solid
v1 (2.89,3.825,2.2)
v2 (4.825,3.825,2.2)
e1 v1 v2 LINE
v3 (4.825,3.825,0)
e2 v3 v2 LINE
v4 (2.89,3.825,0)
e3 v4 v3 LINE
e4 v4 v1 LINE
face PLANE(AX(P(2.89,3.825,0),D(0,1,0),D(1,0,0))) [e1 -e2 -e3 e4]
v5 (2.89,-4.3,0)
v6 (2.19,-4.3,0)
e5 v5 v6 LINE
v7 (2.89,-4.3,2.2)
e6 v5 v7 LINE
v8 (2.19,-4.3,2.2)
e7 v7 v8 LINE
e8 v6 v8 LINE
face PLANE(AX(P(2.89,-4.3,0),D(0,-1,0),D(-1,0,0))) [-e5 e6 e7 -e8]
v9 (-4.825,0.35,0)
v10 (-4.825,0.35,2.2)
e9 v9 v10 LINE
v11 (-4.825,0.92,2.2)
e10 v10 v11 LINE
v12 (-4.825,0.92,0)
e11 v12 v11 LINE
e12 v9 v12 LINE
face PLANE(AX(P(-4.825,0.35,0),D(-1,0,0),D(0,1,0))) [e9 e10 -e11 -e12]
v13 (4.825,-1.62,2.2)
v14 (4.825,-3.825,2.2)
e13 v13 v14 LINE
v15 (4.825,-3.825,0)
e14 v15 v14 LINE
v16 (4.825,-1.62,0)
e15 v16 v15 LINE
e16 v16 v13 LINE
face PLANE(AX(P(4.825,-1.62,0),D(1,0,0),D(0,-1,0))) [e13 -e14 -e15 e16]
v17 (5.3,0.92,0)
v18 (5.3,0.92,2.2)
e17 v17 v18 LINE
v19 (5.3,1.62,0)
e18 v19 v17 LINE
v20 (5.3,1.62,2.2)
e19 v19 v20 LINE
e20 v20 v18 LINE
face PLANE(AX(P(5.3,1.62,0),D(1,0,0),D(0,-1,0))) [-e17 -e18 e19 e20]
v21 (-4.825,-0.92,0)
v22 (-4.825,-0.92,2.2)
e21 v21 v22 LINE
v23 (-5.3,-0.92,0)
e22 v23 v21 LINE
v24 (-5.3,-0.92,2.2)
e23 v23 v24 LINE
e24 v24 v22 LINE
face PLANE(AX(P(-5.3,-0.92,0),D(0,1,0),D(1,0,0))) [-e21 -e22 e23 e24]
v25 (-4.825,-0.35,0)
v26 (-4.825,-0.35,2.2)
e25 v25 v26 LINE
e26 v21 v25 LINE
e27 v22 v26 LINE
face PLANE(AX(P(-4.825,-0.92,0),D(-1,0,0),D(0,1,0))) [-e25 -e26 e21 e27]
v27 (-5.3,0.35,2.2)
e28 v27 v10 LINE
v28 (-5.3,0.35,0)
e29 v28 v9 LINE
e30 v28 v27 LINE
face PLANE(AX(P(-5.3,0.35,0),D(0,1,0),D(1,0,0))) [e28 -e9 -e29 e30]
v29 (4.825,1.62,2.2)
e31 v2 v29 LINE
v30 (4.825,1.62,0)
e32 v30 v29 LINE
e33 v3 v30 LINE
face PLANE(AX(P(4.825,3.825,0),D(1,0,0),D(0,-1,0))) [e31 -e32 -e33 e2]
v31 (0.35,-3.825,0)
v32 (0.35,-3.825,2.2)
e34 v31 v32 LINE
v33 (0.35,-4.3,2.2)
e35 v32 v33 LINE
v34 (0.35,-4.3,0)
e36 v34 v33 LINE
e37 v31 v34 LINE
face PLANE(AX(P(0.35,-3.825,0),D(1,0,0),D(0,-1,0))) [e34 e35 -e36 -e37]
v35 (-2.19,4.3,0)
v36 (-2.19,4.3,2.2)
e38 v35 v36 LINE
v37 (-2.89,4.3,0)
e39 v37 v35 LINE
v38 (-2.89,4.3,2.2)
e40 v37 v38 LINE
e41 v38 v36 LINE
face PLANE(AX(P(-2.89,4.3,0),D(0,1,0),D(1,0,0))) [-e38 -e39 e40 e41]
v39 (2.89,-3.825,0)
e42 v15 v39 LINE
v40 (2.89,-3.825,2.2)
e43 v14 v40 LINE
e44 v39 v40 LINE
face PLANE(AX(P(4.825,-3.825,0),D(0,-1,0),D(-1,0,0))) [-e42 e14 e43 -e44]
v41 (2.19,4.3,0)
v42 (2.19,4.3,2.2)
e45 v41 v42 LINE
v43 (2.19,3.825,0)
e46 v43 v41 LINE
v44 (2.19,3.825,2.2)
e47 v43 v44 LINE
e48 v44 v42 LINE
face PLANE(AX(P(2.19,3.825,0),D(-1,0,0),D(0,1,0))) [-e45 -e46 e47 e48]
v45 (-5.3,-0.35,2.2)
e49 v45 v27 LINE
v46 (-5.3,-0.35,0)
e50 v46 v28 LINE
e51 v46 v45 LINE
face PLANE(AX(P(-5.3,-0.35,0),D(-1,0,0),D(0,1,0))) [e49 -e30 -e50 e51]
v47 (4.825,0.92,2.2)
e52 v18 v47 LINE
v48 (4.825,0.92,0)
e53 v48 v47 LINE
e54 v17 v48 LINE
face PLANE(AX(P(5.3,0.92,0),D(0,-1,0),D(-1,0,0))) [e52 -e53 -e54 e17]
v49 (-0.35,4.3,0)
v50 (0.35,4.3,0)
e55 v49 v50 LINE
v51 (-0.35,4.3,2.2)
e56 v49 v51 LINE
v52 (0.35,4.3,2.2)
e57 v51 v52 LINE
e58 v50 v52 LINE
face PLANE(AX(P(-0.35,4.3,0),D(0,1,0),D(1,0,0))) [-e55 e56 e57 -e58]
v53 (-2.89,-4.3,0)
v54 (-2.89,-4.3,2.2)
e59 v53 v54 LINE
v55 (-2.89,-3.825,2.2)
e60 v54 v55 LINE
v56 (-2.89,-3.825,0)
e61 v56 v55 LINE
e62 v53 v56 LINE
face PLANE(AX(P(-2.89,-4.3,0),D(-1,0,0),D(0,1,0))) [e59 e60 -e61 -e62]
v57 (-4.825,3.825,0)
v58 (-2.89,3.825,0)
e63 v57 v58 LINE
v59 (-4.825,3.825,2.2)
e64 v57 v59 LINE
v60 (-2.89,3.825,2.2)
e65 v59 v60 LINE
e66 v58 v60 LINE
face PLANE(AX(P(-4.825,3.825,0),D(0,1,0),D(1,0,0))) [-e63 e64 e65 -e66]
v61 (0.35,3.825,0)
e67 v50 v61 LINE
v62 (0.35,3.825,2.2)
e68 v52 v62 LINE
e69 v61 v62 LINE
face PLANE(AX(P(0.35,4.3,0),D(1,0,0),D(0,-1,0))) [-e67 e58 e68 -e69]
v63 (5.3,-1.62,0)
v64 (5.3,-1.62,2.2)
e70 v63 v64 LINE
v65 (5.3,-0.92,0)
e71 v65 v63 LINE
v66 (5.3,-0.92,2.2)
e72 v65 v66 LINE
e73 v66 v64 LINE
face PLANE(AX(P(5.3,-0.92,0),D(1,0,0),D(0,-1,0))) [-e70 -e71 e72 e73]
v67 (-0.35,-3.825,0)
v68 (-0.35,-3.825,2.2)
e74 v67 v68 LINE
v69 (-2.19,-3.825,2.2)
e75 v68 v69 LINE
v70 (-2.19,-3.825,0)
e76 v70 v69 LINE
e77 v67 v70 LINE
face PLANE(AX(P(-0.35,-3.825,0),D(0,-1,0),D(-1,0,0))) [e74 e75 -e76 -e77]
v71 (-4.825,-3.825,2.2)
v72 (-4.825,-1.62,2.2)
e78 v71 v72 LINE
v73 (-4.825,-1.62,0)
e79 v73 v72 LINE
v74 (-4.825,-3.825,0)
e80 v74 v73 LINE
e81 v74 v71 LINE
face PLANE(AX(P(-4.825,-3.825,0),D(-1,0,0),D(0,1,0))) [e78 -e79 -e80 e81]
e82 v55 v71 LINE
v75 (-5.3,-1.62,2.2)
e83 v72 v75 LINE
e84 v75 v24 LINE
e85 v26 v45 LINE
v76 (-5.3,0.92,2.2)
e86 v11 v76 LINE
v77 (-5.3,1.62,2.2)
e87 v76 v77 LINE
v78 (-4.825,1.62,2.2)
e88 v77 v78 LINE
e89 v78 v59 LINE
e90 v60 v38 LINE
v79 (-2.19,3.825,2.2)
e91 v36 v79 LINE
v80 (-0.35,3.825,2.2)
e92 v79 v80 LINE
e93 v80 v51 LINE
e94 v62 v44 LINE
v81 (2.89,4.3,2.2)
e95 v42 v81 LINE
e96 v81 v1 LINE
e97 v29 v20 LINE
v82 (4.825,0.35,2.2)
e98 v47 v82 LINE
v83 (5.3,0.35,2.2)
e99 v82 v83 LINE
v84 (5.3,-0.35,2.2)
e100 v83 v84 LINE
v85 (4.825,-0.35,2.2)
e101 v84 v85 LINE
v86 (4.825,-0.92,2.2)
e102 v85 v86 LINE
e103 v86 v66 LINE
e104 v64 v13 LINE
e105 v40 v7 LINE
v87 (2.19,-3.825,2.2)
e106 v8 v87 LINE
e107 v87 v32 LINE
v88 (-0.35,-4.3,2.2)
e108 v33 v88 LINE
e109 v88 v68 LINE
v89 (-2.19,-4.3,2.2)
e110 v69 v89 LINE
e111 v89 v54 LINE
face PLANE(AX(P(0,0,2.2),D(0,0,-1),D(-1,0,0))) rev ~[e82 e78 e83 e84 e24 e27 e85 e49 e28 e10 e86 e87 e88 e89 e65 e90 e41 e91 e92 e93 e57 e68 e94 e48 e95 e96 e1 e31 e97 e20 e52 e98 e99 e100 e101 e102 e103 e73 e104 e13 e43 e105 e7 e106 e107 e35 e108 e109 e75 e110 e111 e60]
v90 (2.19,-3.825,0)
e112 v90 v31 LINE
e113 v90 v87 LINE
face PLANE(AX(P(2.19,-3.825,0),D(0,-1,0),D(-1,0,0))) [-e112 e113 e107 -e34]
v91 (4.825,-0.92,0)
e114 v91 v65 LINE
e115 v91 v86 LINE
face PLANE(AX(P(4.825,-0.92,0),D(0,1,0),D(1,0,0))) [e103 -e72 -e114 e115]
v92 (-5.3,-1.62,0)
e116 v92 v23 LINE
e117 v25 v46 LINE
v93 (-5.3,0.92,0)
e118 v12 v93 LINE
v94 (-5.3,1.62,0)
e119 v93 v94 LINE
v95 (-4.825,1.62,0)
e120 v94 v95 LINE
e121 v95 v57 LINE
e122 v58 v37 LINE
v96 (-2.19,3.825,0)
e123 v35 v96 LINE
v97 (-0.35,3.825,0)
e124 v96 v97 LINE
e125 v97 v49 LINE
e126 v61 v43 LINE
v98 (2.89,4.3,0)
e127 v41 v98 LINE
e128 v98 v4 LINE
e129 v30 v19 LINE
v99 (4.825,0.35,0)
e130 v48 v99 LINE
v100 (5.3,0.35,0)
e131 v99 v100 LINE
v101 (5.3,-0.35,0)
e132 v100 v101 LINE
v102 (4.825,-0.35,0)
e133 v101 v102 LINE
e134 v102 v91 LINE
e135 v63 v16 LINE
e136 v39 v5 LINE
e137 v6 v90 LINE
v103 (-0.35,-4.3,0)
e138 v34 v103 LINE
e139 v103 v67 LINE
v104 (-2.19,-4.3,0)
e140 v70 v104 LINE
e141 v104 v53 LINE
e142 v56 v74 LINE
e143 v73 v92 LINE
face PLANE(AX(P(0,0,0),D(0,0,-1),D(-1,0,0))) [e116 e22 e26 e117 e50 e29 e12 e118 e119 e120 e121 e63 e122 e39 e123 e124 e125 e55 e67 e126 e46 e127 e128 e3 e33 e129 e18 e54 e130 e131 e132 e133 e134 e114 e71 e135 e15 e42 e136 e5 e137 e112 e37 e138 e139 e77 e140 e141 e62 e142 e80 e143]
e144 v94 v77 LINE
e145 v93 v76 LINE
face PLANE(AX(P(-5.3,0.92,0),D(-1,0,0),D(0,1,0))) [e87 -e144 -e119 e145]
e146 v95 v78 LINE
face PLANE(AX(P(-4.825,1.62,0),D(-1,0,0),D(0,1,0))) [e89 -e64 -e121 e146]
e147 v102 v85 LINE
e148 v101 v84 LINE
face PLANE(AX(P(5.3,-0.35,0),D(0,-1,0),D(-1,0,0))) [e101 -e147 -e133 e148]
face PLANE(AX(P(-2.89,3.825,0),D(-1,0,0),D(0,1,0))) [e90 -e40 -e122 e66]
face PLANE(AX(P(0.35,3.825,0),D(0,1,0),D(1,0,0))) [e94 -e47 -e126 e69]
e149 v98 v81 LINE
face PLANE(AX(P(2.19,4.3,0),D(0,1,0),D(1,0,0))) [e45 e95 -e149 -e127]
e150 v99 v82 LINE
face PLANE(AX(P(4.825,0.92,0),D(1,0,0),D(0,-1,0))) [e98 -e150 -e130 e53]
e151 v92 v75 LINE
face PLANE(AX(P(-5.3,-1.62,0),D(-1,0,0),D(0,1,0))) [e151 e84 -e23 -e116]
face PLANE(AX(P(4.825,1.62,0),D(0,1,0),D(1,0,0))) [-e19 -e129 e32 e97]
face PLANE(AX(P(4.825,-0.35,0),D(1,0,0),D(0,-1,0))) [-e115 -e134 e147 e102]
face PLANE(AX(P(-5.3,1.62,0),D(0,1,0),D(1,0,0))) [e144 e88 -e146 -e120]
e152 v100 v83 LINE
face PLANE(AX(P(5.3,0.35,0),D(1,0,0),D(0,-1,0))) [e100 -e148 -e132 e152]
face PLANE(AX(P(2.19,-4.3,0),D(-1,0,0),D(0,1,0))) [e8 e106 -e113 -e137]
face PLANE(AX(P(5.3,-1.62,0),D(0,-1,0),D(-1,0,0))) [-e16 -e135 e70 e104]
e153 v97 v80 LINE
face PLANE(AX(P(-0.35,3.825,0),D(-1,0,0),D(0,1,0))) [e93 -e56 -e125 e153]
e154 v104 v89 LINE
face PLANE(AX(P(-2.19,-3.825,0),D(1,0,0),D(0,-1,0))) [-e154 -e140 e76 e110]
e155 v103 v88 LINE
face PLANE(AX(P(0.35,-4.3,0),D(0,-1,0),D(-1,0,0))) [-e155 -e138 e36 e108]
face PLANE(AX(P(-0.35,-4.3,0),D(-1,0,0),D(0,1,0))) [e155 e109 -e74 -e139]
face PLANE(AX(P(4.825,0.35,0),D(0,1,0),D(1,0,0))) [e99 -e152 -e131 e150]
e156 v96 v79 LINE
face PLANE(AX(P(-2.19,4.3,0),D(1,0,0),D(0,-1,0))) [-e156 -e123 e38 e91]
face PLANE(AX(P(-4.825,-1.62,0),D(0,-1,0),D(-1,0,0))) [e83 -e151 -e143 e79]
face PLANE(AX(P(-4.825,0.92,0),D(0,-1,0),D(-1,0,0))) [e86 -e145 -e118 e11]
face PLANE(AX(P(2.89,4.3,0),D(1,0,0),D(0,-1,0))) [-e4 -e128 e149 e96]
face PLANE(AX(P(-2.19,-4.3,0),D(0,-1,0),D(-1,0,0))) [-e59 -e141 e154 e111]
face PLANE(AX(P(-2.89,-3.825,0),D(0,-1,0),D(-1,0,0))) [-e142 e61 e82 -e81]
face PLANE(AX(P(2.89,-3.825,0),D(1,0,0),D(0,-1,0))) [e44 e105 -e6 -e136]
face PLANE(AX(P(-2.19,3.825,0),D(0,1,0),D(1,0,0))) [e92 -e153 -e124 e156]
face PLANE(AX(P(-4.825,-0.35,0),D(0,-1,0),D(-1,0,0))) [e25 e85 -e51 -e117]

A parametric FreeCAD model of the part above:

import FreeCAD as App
import Part
import Sketcher

V = App.Vector


def add_polygon(sketch, points):
    """Adds a closed chain of lines whose ends are joined by coincident constraints."""
    first, n = sketch.GeometryCount, len(points)
    for a, b in zip(points, points[1:] + points[:1]):
        sketch.addGeometry(Part.LineSegment(App.Vector(*a, 0), App.Vector(*b, 0)), False)
    for i in range(n):
        sketch.addConstraint(Sketcher.Constraint("Coincident", first + i, 2, first + (i + 1) % n, 1))

doc = App.newDocument("Part")
body = doc.addObject("PartDesign::Body", "Body")

sketch1 = doc.addObject("Sketcher::SketchObject", "Sketch")
body.addObject(sketch1)
sketch1.AttachmentSupport = (doc.XY_Plane, [""])
sketch1.MapMode = "FlatFace"
add_polygon(sketch1, [(-2.89, -3.83), (-2.89, -4.3), (-2.19, -4.3), (-2.19, -3.83), (-0.35, -3.83), (-0.35, -4.3), (0.35, -4.3), (0.35, -3.83), (2.19, -3.83), (2.19, -4.3), (2.89, -4.3), (2.89, -3.83), (4.83, -3.83), (4.83, -1.62), (5.3, -1.62), (5.3, -0.92), (4.83, -0.92), (4.83, -0.35), (5.3, -0.35), (5.3, 0.35), (4.83, 0.35), (4.83, 0.92), (5.3, 0.92), (5.3, 1.62), (4.83, 1.62), (4.83, 3.83), (2.89, 3.83), (2.89, 4.3), (2.19, 4.3), (2.19, 3.83), (0.35, 3.83), (0.35, 4.3), (-0.35, 4.3), (-0.35, 3.83), (-2.19, 3.83), (-2.19, 4.3), (-2.89, 4.3), (-2.89, 3.83), (-4.83, 3.83), (-4.83, 1.62), (-5.3, 1.62), (-5.3, 0.92), (-4.83, 0.92), (-4.83, 0.35), (-5.3, 0.35), (-5.3, -0.35), (-4.83, -0.35), (-4.83, -0.92), (-5.3, -0.92), (-5.3, -1.62), (-4.83, -1.62), (-4.83, -3.83)])
sketch1.addConstraint([
    Sketcher.Constraint("Vertical", 0),
    Sketcher.Constraint("Horizontal", 1),
    Sketcher.Constraint("Vertical", 2),
    Sketcher.Constraint("Horizontal", 3),
    Sketcher.Constraint("Vertical", 4),
    Sketcher.Constraint("Horizontal", 5),
    Sketcher.Constraint("Vertical", 6),
    Sketcher.Constraint("Horizontal", 7),
    Sketcher.Constraint("Vertical", 8),
    Sketcher.Constraint("Horizontal", 9),
    Sketcher.Constraint("Vertical", 10),
    Sketcher.Constraint("Horizontal", 11),
    Sketcher.Constraint("Vertical", 12),
    Sketcher.Constraint("Horizontal", 13),
    Sketcher.Constraint("Vertical", 14),
    Sketcher.Constraint("Horizontal", 15),
    Sketcher.Constraint("Vertical", 16),
    Sketcher.Constraint("Horizontal", 17),
    Sketcher.Constraint("Vertical", 18),
    Sketcher.Constraint("Horizontal", 19),
    Sketcher.Constraint("Vertical", 20),
    Sketcher.Constraint("Horizontal", 21),
    Sketcher.Constraint("Vertical", 22),
    Sketcher.Constraint("Horizontal", 23),
    Sketcher.Constraint("Vertical", 24),
    Sketcher.Constraint("Horizontal", 25),
    Sketcher.Constraint("Vertical", 26),
    Sketcher.Constraint("Horizontal", 27),
    Sketcher.Constraint("Vertical", 28),
    Sketcher.Constraint("Horizontal", 29),
    Sketcher.Constraint("Vertical", 30),
    Sketcher.Constraint("Horizontal", 31),
    Sketcher.Constraint("Vertical", 32),
    Sketcher.Constraint("Horizontal", 33),
    Sketcher.Constraint("Vertical", 34),
    Sketcher.Constraint("Horizontal", 35),
    Sketcher.Constraint("Vertical", 36),
    Sketcher.Constraint("Horizontal", 37),
    Sketcher.Constraint("Vertical", 38),
    Sketcher.Constraint("Horizontal", 39),
    Sketcher.Constraint("Vertical", 40),
    Sketcher.Constraint("Horizontal", 41),
    Sketcher.Constraint("Vertical", 42),
    Sketcher.Constraint("Horizontal", 43),
    Sketcher.Constraint("Vertical", 44),
    Sketcher.Constraint("Horizontal", 45),
    Sketcher.Constraint("Vertical", 46),
    Sketcher.Constraint("Horizontal", 47),
    Sketcher.Constraint("Vertical", 48),
    Sketcher.Constraint("Horizontal", 49),
    Sketcher.Constraint("Vertical", 50),
    Sketcher.Constraint("Horizontal", 51),
    Sketcher.Constraint("Symmetric", 0, 2, 26, 2, -1, 1),
    Sketcher.Constraint("Symmetric", 2, 2, 28, 2, -1, 1),
    Sketcher.Constraint("Symmetric", 4, 2, 30, 2, -1, 1),
    Sketcher.Constraint("Symmetric", 6, 2, 32, 2, -1, 1),
    Sketcher.Constraint("Symmetric", 8, 2, 34, 2, -1, 1),
    Sketcher.Constraint("Symmetric", 10, 2, 36, 2, -1, 1),
    Sketcher.Constraint("Symmetric", 12, 2, 38, 2, -1, 1),
    Sketcher.Constraint("Symmetric", 14, 2, 40, 2, -1, 1),
    Sketcher.Constraint("Symmetric", 16, 2, 42, 2, -1, 1),
    Sketcher.Constraint("Symmetric", 18, 2, 44, 2, -1, 1),
    Sketcher.Constraint("Symmetric", 20, 2, 46, 2, -1, 1),
    Sketcher.Constraint("Symmetric", 22, 2, 48, 2, -1, 1),
    Sketcher.Constraint("Symmetric", 24, 2, 50, 2, -1, 1),
    Sketcher.Constraint("Symmetric", 3, 2, 6, 2, -2),
    Sketcher.Constraint("Symmetric", 1, 2, 8, 2, -2),
    Sketcher.Constraint("Symmetric", 25, 2, 36, 2, -2),
    Sketcher.Constraint("Symmetric", 23, 2, 38, 2, -2),
    Sketcher.Constraint("Symmetric", 21, 2, 40, 2, -2),
    Sketcher.Constraint("Symmetric", 19, 2, 42, 2, -2),
    Sketcher.Constraint("Horizontal", 1, 2, 4, 2),
    Sketcher.Constraint("Horizontal", 7, 2, 10, 2),
    Sketcher.Constraint("Vertical", 12, 2, 15, 2),
    Sketcher.Constraint("Vertical", 14, 2, 17, 2),
    Sketcher.Constraint("Equal", 1, 5),
    Sketcher.Constraint("Equal", 49, 0),
    Sketcher.Constraint("Equal", 35, 14),
    Sketcher.Constraint("Equal", 14, 18),
    Sketcher.Constraint("DistanceX", 1, 1, 1, 2, 0.7),
    Sketcher.Constraint("DistanceX", 3, 1, 3, 2, 1.84),
    Sketcher.Constraint("DistanceY", 16, 1, 16, 2, 0.57),
    Sketcher.Constraint("DistanceY", 0, 2, -1, 1, 4.3),
    Sketcher.Constraint("DistanceX", -1, 1, 13, 2, 5.3),
    Sketcher.Constraint("DistanceX", 11, 1, 11, 2, 1.935),
])
pad1 = doc.addObject("PartDesign::Pad", "Pad")
body.addObject(pad1)
pad1.Profile = sketch1
pad1.Length = 2.2

doc.recompute()
